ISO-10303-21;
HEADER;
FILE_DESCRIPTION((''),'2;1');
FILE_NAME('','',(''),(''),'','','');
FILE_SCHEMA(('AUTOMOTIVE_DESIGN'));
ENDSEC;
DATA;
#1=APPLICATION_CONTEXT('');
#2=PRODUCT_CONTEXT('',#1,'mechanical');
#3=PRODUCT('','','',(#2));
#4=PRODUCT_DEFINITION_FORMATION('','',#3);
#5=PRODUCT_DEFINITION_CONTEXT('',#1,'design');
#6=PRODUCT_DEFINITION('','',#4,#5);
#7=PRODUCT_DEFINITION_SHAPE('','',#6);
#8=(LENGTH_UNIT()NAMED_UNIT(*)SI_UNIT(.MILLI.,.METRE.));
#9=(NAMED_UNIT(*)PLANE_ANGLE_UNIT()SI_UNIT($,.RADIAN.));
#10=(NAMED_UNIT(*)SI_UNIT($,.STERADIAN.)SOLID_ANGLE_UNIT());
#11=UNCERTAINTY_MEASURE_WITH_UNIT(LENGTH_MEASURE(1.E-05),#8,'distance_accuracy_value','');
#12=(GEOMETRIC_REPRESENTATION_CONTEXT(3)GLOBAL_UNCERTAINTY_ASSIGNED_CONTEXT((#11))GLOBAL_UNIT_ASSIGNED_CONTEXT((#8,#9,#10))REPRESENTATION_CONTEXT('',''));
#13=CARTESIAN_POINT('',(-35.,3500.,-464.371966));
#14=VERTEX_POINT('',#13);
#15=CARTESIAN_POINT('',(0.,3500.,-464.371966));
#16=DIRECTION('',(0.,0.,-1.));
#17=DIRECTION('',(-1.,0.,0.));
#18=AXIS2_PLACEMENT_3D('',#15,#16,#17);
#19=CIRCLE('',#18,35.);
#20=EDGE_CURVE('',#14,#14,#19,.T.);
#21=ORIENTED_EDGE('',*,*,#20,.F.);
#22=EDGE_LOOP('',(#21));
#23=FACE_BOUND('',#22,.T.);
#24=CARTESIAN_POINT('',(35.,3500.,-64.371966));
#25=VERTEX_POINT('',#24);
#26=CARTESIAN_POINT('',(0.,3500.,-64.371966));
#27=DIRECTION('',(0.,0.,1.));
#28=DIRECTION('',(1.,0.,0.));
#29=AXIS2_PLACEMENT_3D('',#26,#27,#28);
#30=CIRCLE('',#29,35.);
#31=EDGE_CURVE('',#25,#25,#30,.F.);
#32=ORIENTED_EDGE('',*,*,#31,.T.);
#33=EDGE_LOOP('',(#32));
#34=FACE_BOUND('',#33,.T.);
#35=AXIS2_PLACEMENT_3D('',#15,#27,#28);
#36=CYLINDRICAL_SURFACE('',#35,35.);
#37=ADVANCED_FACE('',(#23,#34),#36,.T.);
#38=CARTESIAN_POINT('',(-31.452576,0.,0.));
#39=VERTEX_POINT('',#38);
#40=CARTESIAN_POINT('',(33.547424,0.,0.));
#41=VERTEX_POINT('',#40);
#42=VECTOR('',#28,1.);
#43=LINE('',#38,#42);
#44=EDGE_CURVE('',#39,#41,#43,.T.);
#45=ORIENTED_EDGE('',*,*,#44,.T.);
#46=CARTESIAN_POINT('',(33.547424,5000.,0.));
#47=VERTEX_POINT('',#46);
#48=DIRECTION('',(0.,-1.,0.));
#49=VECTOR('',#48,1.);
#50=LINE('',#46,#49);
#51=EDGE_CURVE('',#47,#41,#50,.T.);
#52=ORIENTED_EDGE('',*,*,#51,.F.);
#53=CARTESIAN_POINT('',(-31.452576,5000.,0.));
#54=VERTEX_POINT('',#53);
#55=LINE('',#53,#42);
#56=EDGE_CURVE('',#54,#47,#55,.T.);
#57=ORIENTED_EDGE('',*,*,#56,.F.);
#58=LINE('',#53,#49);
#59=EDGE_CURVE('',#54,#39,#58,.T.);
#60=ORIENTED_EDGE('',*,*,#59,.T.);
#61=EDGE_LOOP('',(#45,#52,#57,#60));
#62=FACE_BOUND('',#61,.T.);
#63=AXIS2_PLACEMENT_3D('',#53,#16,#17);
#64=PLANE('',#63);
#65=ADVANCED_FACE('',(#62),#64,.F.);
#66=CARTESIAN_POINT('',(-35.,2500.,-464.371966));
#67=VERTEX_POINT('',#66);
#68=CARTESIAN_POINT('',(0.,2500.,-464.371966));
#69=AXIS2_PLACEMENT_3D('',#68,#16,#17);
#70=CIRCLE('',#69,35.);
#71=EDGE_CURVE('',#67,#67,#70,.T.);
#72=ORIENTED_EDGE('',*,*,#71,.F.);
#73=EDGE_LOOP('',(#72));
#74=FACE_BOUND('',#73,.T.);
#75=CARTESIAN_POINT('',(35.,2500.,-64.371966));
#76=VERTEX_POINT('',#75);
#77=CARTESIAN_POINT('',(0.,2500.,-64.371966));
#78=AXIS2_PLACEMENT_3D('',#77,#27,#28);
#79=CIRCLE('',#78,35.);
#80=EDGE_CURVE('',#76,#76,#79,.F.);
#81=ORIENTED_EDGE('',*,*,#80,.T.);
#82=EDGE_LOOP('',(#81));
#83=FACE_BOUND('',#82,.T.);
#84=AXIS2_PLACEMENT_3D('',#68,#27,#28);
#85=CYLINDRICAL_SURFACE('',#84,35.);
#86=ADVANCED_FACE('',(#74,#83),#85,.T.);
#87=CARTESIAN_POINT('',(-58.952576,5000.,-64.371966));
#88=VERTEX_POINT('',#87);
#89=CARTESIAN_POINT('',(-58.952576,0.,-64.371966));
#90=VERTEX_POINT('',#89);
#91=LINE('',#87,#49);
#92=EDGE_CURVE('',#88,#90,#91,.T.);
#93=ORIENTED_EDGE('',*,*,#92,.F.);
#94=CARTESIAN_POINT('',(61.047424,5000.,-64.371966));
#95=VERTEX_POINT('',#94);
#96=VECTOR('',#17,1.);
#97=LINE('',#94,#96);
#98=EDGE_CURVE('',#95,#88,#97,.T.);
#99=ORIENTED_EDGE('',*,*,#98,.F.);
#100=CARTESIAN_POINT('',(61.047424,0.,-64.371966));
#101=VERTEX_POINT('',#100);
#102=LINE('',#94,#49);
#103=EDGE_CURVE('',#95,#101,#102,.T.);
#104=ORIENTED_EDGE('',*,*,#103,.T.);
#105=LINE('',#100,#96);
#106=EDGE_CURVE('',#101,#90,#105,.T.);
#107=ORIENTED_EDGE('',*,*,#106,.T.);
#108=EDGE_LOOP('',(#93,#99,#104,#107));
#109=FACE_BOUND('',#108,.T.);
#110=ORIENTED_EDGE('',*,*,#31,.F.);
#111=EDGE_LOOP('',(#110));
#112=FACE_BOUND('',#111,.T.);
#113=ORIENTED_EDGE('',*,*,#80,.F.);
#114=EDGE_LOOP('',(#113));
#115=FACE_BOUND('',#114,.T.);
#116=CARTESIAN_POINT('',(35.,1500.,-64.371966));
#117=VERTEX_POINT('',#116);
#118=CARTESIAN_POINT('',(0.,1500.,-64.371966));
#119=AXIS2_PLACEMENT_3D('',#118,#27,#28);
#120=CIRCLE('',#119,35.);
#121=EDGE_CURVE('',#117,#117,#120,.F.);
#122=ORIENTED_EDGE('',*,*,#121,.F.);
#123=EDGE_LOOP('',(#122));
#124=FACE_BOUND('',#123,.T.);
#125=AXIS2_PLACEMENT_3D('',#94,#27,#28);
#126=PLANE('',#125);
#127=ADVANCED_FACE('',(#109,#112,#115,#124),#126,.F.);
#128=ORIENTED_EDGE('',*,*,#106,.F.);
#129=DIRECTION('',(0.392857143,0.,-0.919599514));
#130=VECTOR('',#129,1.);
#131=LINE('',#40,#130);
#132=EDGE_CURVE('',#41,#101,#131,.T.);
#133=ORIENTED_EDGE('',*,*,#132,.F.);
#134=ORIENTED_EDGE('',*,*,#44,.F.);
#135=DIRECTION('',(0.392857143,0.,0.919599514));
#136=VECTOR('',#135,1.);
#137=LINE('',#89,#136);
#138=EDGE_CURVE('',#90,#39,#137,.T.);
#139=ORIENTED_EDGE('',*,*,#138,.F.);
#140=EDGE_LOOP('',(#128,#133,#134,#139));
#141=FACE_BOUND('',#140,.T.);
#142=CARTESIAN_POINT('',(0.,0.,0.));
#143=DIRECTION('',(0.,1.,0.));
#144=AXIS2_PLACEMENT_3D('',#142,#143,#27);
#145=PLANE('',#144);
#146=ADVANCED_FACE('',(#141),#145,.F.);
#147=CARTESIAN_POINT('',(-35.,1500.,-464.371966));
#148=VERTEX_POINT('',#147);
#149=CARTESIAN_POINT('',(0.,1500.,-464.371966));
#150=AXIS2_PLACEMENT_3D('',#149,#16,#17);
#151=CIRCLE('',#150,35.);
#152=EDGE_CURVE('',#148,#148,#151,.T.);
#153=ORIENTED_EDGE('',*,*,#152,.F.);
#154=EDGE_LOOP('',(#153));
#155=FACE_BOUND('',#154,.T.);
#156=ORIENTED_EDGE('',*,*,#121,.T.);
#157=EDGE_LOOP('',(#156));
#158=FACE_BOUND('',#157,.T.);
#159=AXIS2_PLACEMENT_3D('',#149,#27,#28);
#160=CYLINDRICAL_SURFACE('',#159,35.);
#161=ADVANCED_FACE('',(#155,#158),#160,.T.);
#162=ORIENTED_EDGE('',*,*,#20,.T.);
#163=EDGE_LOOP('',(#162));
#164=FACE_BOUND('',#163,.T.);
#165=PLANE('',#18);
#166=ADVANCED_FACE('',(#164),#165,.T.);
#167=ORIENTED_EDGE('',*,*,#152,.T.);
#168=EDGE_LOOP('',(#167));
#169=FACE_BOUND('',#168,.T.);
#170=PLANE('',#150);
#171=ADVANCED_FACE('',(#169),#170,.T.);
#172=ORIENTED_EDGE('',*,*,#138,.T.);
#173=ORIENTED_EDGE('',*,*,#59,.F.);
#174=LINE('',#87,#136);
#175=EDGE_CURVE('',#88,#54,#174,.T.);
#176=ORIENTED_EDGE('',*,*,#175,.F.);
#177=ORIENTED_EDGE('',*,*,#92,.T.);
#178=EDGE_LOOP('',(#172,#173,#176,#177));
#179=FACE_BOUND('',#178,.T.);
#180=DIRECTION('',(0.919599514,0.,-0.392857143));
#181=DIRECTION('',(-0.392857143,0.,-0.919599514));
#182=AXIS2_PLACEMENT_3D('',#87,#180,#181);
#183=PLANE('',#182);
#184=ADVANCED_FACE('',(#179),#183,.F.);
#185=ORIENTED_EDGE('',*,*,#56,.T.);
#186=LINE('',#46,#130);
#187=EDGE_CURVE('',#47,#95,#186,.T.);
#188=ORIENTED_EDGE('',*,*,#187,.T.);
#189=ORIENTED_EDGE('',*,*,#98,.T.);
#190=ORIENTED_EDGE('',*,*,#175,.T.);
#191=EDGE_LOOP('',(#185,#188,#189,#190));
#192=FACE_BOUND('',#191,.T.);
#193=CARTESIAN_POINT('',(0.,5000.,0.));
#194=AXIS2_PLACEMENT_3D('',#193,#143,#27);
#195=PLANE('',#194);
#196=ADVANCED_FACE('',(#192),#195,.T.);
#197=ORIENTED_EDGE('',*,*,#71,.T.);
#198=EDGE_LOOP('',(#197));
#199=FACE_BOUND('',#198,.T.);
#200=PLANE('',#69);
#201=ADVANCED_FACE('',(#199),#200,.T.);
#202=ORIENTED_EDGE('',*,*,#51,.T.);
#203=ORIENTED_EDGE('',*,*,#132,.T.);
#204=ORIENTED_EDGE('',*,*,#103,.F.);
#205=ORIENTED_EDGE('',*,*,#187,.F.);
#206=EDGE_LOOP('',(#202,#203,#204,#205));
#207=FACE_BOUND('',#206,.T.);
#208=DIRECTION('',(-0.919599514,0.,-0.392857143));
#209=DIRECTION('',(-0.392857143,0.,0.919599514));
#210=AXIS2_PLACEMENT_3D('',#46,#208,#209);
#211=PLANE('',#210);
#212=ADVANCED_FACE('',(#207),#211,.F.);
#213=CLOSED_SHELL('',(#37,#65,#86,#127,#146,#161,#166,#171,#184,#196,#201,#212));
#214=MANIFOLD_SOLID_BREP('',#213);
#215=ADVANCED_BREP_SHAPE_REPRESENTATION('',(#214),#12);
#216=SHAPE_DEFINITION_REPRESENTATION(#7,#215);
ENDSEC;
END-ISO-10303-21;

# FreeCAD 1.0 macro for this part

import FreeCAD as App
import Part
import Sketcher

V = App.Vector
Q = App.Units.Quantity

doc = App.newDocument("Part")
body = doc.addObject("PartDesign::Body", "Body")

# Sketch on XZ plane
sketch1 = body.newObject("Sketcher::SketchObject", "Sketch")
sketch1.AttachmentSupport = (doc.getObject("XZ_Plane"), [""])
sketch1.MapMode = "FlatFace"
sketch1.addGeometry(Part.LineSegment(V(-31, 0, 0), V(34, 0, 0)), False)
sketch1.addGeometry(Part.LineSegment(V(34, 0, 0), V(61, -64, 0)), False)
sketch1.addGeometry(Part.LineSegment(V(61, -64, 0), V(-59, -64, 0)), False)
sketch1.addGeometry(Part.LineSegment(V(-59, -64, 0), V(-31, 0, 0)), False)
sketch1.addConstraint(Sketcher.Constraint("Coincident", 0, 2, 1, 1))
sketch1.addConstraint(Sketcher.Constraint("Coincident", 1, 2, 2, 1))
sketch1.addConstraint(Sketcher.Constraint("Coincident", 2, 2, 3, 1))
sketch1.addConstraint(Sketcher.Constraint("Coincident", 3, 2, 0, 1))
sketch1.addConstraint(Sketcher.Constraint("Horizontal", 0))
sketch1.addConstraint(Sketcher.Constraint("Horizontal", 2))
sketch1.addConstraint(Sketcher.Constraint("PointOnObject", 0, 2, -1))
sketch1.addConstraint(Sketcher.Constraint("Equal", 1, 3))
sketch1.addConstraint(Sketcher.Constraint("DistanceX", 0, 1, 0, 2, Q("65 mm")))
sketch1.addConstraint(Sketcher.Constraint("DistanceX", 2, 2, 2, 1, Q("120 mm")))
sketch1.addConstraint(Sketcher.Constraint("Distance", 1, Q("70 mm")))
sketch1.addConstraint(Sketcher.Constraint("DistanceX", -1, 1, 0, 2, Q("33.547424 mm")))
pad1 = body.newObject("PartDesign::Pad", "Pad")
pad1.Profile = sketch1
pad1.Length = 5000
pad1.Reversed = True

# Sketch on XY plane
sketch2 = body.newObject("Sketcher::SketchObject", "Sketch001")
sketch2.AttachmentSupport = (doc.getObject("XY_Plane"), [""])
sketch2.MapMode = "FlatFace"
sketch2.AttachmentOffset = App.Placement(V(0, 0, -64.371966), App.Rotation())
sketch2.addGeometry(Part.Circle(V(0, 1500, 0), V(0, 0, 1), 35), False)
sketch2.addConstraint(Sketcher.Constraint("PointOnObject", 0, 3, -2))
sketch2.addConstraint(Sketcher.Constraint("Diameter", 0, Q("70 mm")))
sketch2.addConstraint(Sketcher.Constraint("DistanceY", -1, 1, 0, 3, Q("1500 mm")))
pad2 = body.newObject("PartDesign::Pad", "Pad001")
pad2.Profile = sketch2
pad2.Length = 400
pad2.Reversed = True
doc.recompute()

linearpattern = body.newObject("PartDesign::LinearPattern", "LinearPattern")
linearpattern.Originals = [pad2]
linearpattern.Direction = (doc.getObject("Y_Axis"), [""])
linearpattern.Mode = "offset"
linearpattern.Offset = 1000
linearpattern.Occurrences = 3
body.Tip = linearpattern

doc.recompute()
